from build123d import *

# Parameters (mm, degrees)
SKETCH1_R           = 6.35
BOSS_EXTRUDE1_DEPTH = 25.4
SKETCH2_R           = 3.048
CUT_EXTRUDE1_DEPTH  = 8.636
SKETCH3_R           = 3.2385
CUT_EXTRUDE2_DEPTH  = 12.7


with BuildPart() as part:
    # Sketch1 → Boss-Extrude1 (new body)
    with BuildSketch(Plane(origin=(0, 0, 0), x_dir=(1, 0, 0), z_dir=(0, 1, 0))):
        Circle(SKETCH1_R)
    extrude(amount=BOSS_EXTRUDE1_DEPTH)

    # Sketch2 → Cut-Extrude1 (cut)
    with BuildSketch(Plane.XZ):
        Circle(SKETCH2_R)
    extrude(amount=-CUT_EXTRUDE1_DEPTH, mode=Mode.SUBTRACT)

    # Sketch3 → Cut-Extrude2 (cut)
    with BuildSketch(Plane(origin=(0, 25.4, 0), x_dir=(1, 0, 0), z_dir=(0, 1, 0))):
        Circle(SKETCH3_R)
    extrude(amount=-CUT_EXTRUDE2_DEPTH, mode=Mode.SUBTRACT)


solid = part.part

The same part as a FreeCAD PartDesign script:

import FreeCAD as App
import Part
import Sketcher

V = App.Vector
Q = App.Units.Quantity

doc = App.newDocument("Part")
body = doc.addObject("PartDesign::Body", "Body")

# Sketch on XZ plane
sketch1 = body.newObject("Sketcher::SketchObject", "Sketch")
sketch1.AttachmentSupport = (doc.getObject("XZ_Plane"), [""])
sketch1.MapMode = "FlatFace"
sketch1.addGeometry(Part.Circle(V(0, 0, 0), V(0, 0, 1), 6.35), False)
sketch1.addConstraint(Sketcher.Constraint("Coincident", 0, 3, -1, 1))
sketch1.addConstraint(Sketcher.Constraint("Diameter", 0, Q("0.5 in")))
pad1 = body.newObject("PartDesign::Pad", "Pad")
pad1.Profile = sketch1
pad1.Length = Q("1 in")
pad1.Reversed = True

# Sketch on XZ plane
sketch2 = body.newObject("Sketcher::SketchObject", "Sketch001")
sketch2.AttachmentSupport = (doc.getObject("XZ_Plane"), [""])
sketch2.MapMode = "FlatFace"
sketch2.addGeometry(Part.Circle(V(0, 0, 0), V(0, 0, 1), 3.048), False)
sketch2.addConstraint(Sketcher.Constraint("Coincident", 0, 3, -1, 1))
sketch2.addConstraint(Sketcher.Constraint("Diameter", 0, Q("0.24 in")))
pocket1 = body.newObject("PartDesign::Pocket", "Pocket")
pocket1.Profile = sketch2
pocket1.Length = Q("0.34 in")

# Sketch on XZ plane
sketch3 = body.newObject("Sketcher::SketchObject", "Sketch002")
sketch3.AttachmentSupport = (doc.getObject("XZ_Plane"), [""])
sketch3.MapMode = "FlatFace"
sketch3.AttachmentOffset = App.Placement(V(0, 0, -1 * 25.4), App.Rotation())
sketch3.addGeometry(Part.Circle(V(0, 0, 0), V(0, 0, 1), 3.2385), False)
sketch3.addConstraint(Sketcher.Constraint("Coincident", 0, 3, -1, 1))
sketch3.addConstraint(Sketcher.Constraint("Diameter", 0, Q("0.255 in")))
pocket2 = body.newObject("PartDesign::Pocket", "Pocket001")
pocket2.Profile = sketch3
pocket2.Length = Q("0.5 in")
pocket2.Reversed = True

doc.recompute()
